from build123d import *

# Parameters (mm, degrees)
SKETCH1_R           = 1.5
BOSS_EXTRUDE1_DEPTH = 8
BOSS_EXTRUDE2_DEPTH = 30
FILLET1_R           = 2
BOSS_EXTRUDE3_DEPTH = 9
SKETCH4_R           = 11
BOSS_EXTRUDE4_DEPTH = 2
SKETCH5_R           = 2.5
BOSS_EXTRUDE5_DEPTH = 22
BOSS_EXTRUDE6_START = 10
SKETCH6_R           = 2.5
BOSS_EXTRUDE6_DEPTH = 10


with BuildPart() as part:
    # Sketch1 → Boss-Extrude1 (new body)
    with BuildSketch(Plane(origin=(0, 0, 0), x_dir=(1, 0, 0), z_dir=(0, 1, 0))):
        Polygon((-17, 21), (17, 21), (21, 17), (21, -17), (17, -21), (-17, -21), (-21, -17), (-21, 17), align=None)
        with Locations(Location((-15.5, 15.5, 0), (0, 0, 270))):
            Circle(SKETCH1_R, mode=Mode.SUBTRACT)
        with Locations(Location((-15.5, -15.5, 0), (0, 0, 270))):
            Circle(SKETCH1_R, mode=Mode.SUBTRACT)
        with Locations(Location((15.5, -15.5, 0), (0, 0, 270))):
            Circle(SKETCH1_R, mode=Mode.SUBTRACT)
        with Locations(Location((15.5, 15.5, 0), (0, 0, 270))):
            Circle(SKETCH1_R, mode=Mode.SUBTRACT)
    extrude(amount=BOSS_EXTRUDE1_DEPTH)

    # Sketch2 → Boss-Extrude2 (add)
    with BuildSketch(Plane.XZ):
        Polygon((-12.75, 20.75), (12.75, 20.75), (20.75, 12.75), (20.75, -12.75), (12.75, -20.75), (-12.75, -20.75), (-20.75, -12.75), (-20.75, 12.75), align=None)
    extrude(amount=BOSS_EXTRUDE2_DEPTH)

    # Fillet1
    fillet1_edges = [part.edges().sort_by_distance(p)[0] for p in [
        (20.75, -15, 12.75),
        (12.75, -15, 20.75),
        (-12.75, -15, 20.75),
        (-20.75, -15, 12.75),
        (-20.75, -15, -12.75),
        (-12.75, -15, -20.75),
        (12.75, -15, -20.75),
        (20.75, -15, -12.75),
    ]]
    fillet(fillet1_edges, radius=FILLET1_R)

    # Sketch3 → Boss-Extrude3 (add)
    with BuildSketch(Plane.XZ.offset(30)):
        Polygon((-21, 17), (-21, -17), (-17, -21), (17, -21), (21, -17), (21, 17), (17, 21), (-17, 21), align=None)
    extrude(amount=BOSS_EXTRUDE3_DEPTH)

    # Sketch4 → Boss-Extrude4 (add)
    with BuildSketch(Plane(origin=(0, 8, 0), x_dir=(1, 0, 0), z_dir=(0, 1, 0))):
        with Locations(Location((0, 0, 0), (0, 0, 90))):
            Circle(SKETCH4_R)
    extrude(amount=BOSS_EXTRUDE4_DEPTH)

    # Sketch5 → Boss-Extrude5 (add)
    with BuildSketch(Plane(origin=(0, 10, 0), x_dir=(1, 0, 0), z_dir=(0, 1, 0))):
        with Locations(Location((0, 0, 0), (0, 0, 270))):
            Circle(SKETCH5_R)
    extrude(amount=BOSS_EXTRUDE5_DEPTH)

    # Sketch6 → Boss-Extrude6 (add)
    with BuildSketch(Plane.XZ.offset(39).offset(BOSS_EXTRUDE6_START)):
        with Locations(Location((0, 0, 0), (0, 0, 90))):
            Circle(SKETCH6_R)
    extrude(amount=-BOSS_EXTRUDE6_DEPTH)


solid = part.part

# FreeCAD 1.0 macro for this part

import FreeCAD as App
import Part
import Sketcher


def edges_at(feature, points):
    """Names of the edges that pass closest to the given points."""
    edges = feature.Shape.Edges
    near = lambda p: min(range(len(edges)), key=lambda i: edges[i].distToShape(Part.Vertex(*p))[0])
    return sorted({f"Edge{near(p) + 1}" for p in points})

doc = App.newDocument("Part")
body = doc.addObject("PartDesign::Body", "Body")

# Sketch on XZ plane
sketch1 = doc.addObject("Sketcher::SketchObject", "Sketch")
body.addObject(sketch1)
sketch1.AttachmentSupport = (doc.XZ_Plane, [""])
sketch1.MapMode = "FlatFace"
sketch1.addGeometry([
    Part.LineSegment(App.Vector(17, -21, 0), App.Vector(-17, -21, 0)),  # 0
    Part.LineSegment(App.Vector(-17, -21, 0), App.Vector(-21, -17, 0)),  # 1
    Part.LineSegment(App.Vector(-21, -17, 0), App.Vector(-21, 17, 0)),  # 2
    Part.LineSegment(App.Vector(-21, 17, 0), App.Vector(-17, 21, 0)),  # 3
    Part.LineSegment(App.Vector(-17, 21, 0), App.Vector(17, 21, 0)),  # 4
    Part.LineSegment(App.Vector(17, 21, 0), App.Vector(21, 17, 0)),  # 5
    Part.LineSegment(App.Vector(21, 17, 0), App.Vector(21, -17, 0)),  # 6
    Part.LineSegment(App.Vector(21, -17, 0), App.Vector(17, -21, 0)),  # 7
    Part.Circle(App.Vector(15.5, 15.5, 0), App.Vector(0, 0, 1), 1.5),  # 8
    Part.Circle(App.Vector(-15.5, 15.5, 0), App.Vector(0, 0, 1), 1.5),  # 9
    Part.Circle(App.Vector(15.5, -15.5, 0), App.Vector(0, 0, 1), 1.5),  # 10
    Part.Circle(App.Vector(-15.5, -15.5, 0), App.Vector(0, 0, 1), 1.5),  # 11
], False)
sketch1.addConstraint([
    Sketcher.Constraint("Coincident", 0, 2, 1, 1),
    Sketcher.Constraint("Coincident", 1, 2, 2, 1),
    Sketcher.Constraint("Coincident", 2, 2, 3, 1),
    Sketcher.Constraint("Coincident", 3, 2, 4, 1),
    Sketcher.Constraint("Coincident", 4, 2, 5, 1),
    Sketcher.Constraint("Coincident", 5, 2, 6, 1),
    Sketcher.Constraint("Coincident", 6, 2, 7, 1),
    Sketcher.Constraint("Coincident", 7, 2, 0, 1),
    Sketcher.Constraint("Horizontal", 0),
    Sketcher.Constraint("Vertical", 2),
    Sketcher.Constraint("Horizontal", 4),
    Sketcher.Constraint("Vertical", 6),
    Sketcher.Constraint("Equal", 8, 9),
    Sketcher.Constraint("Equal", 9, 10),
    Sketcher.Constraint("Equal", 10, 11),
    Sketcher.Constraint("Symmetric", 9, 3, 10, 3, -1, 1),
    Sketcher.Constraint("Symmetric", 8, 3, 11, 3, -1, 1),
    Sketcher.Constraint("Symmetric", 0, 2, 4, 2, -1, 1),
    Sketcher.Constraint("Symmetric", 1, 2, 5, 2, -1, 1),
    Sketcher.Constraint("Symmetric", 8, 3, 9, 3, -2),
    Sketcher.Constraint("Perpendicular", 1, 3),
    Sketcher.Constraint("Perpendicular", 5, 7),
    Sketcher.Constraint("Horizontal", 2, 2, 5, 2),
    Sketcher.Constraint("Horizontal", 1, 2, 6, 2),
    Sketcher.Constraint("Vertical", 0, 2, 3, 2),
    Sketcher.Constraint("Equal", 4, 2),
    Sketcher.Constraint("Diameter", 8, 3.0),
    Sketcher.Constraint("DistanceX", 0, 2, 0, 1, 34.0),
    Sketcher.Constraint("DistanceY", 0, 2, -1, 1, 21.0),
    Sketcher.Constraint("DistanceX", 9, 3, 8, 3, 31.0),
    Sketcher.Constraint("DistanceY", 10, 3, 8, 3, 31.0),
])
pad1 = doc.addObject("PartDesign::Pad", "Pad")
body.addObject(pad1)
pad1.Profile = sketch1
pad1.Length = 8
pad1.Reversed = True

# Sketch on XZ plane
sketch2 = doc.addObject("Sketcher::SketchObject", "Sketch001")
body.addObject(sketch2)
sketch2.AttachmentSupport = (doc.XZ_Plane, [""])
sketch2.MapMode = "FlatFace"
sketch2.addGeometry([
    Part.LineSegment(App.Vector(13, 21, 0), App.Vector(-13, 21, 0)),  # 0
    Part.LineSegment(App.Vector(-13, 21, 0), App.Vector(-21, 13, 0)),  # 1
    Part.LineSegment(App.Vector(-21, 13, 0), App.Vector(-21, -13, 0)),  # 2
    Part.LineSegment(App.Vector(-21, -13, 0), App.Vector(-13, -21, 0)),  # 3
    Part.LineSegment(App.Vector(-13, -21, 0), App.Vector(13, -21, 0)),  # 4
    Part.LineSegment(App.Vector(13, -21, 0), App.Vector(21, -13, 0)),  # 5
    Part.LineSegment(App.Vector(21, -13, 0), App.Vector(21, 13, 0)),  # 6
    Part.LineSegment(App.Vector(21, 13, 0), App.Vector(13, 21, 0)),  # 7
], False)
sketch2.addConstraint([
    Sketcher.Constraint("Coincident", 0, 2, 1, 1),
    Sketcher.Constraint("Coincident", 1, 2, 2, 1),
    Sketcher.Constraint("Coincident", 2, 2, 3, 1),
    Sketcher.Constraint("Coincident", 3, 2, 4, 1),
    Sketcher.Constraint("Coincident", 4, 2, 5, 1),
    Sketcher.Constraint("Coincident", 5, 2, 6, 1),
    Sketcher.Constraint("Coincident", 6, 2, 7, 1),
    Sketcher.Constraint("Coincident", 7, 2, 0, 1),
    Sketcher.Constraint("Horizontal", 0),
    Sketcher.Constraint("Vertical", 2),
    Sketcher.Constraint("Horizontal", 4),
    Sketcher.Constraint("Vertical", 6),
    Sketcher.Constraint("Symmetric", 0, 2, 4, 2, -1, 1),
    Sketcher.Constraint("Symmetric", 1, 2, 5, 2, -1, 1),
    Sketcher.Constraint("Perpendicular", 1, 3),
    Sketcher.Constraint("Perpendicular", 5, 7),
    Sketcher.Constraint("Horizontal", 2, 2, 5, 2),
    Sketcher.Constraint("Horizontal", 1, 2, 6, 2),
    Sketcher.Constraint("Vertical", 0, 2, 3, 2),
    Sketcher.Constraint("Equal", 4, 2),
    Sketcher.Constraint("DistanceX", 0, 2, 0, 1, 25.5),
    Sketcher.Constraint("DistanceX", 1, 2, 0, 2, 8.0),
])
pad2 = doc.addObject("PartDesign::Pad", "Pad001")
body.addObject(pad2)
pad2.Profile = sketch2
pad2.Length = 30
doc.recompute()

fillet = doc.addObject("PartDesign::Fillet", "Fillet")
body.addObject(fillet)
fillet.Base = (pad2, edges_at(pad2, [
    (20.75, -15, 12.75),
    (12.75, -15, 20.75),
    (-12.75, -15, 20.75),
    (-20.75, -15, 12.75),
    (-20.75, -15, -12.75),
    (-12.75, -15, -20.75),
    (12.75, -15, -20.75),
    (20.75, -15, -12.75),
]))
fillet.Radius = 2

# Sketch on XZ plane
sketch3 = doc.addObject("Sketcher::SketchObject", "Sketch002")
body.addObject(sketch3)
sketch3.AttachmentSupport = (doc.XZ_Plane, [""])
sketch3.MapMode = "FlatFace"
sketch3.AttachmentOffset = App.Placement(App.Vector(0, 0, 30), App.Rotation())
sketch3.addGeometry([
    Part.LineSegment(App.Vector(-21, 17, 0), App.Vector(-21, -17, 0)),  # 0
    Part.LineSegment(App.Vector(-21, -17, 0), App.Vector(-17, -21, 0)),  # 1
    Part.LineSegment(App.Vector(-17, -21, 0), App.Vector(17, -21, 0)),  # 2
    Part.LineSegment(App.Vector(17, -21, 0), App.Vector(21, -17, 0)),  # 3
    Part.LineSegment(App.Vector(21, -17, 0), App.Vector(21, 17, 0)),  # 4
    Part.LineSegment(App.Vector(21, 17, 0), App.Vector(17, 21, 0)),  # 5
    Part.LineSegment(App.Vector(17, 21, 0), App.Vector(-17, 21, 0)),  # 6
    Part.LineSegment(App.Vector(-17, 21, 0), App.Vector(-21, 17, 0)),  # 7
], False)
sketch3.addConstraint([
    Sketcher.Constraint("Coincident", 0, 2, 1, 1),
    Sketcher.Constraint("Coincident", 1, 2, 2, 1),
    Sketcher.Constraint("Coincident", 2, 2, 3, 1),
    Sketcher.Constraint("Coincident", 3, 2, 4, 1),
    Sketcher.Constraint("Coincident", 4, 2, 5, 1),
    Sketcher.Constraint("Coincident", 5, 2, 6, 1),
    Sketcher.Constraint("Coincident", 6, 2, 7, 1),
    Sketcher.Constraint("Coincident", 7, 2, 0, 1),
    Sketcher.Constraint("Vertical", 0),
    Sketcher.Constraint("Horizontal", 2),
    Sketcher.Constraint("Vertical", 4),
    Sketcher.Constraint("Horizontal", 6),
    Sketcher.Constraint("Symmetric", 0, 2, 4, 2, -1, 1),
    Sketcher.Constraint("Symmetric", 1, 2, 5, 2, -1, 1),
    Sketcher.Constraint("Perpendicular", 1, 3),
    Sketcher.Constraint("Perpendicular", 5, 7),
    Sketcher.Constraint("Horizontal", 0, 2, 3, 2),
    Sketcher.Constraint("Horizontal", 4, 2, 7, 2),
    Sketcher.Constraint("Vertical", 2, 2, 5, 2),
    Sketcher.Constraint("Equal", 6, 0),
    Sketcher.Constraint("DistanceX", 2, 1, 2, 2, 34.0),
    Sketcher.Constraint("DistanceX", 0, 2, -1, 1, 21.0),
])
pad3 = doc.addObject("PartDesign::Pad", "Pad002")
body.addObject(pad3)
pad3.Profile = sketch3
pad3.Length = 9

# Sketch on XZ plane
sketch4 = doc.addObject("Sketcher::SketchObject", "Sketch003")
body.addObject(sketch4)
sketch4.AttachmentSupport = (doc.XZ_Plane, [""])
sketch4.MapMode = "FlatFace"
sketch4.AttachmentOffset = App.Placement(App.Vector(0, 0, -8), App.Rotation())
sketch4.addGeometry(Part.Circle(App.Vector(0, 0, 0), App.Vector(0, 0, 1), 11), False)
sketch4.addConstraint([
    Sketcher.Constraint("Coincident", 0, 3, -1, 1),
    Sketcher.Constraint("Diameter", 0, 22.0),
])
pad4 = doc.addObject("PartDesign::Pad", "Pad003")
body.addObject(pad4)
pad4.Profile = sketch4
pad4.Length = 2
pad4.Reversed = True

# Sketch on XZ plane
sketch5 = doc.addObject("Sketcher::SketchObject", "Sketch004")
body.addObject(sketch5)
sketch5.AttachmentSupport = (doc.XZ_Plane, [""])
sketch5.MapMode = "FlatFace"
sketch5.AttachmentOffset = App.Placement(App.Vector(0, 0, -10), App.Rotation())
sketch5.addGeometry(Part.Circle(App.Vector(0, 0, 0), App.Vector(0, 0, 1), 2.5), False)
sketch5.addConstraint([
    Sketcher.Constraint("Coincident", 0, 3, -1, 1),
    Sketcher.Constraint("Diameter", 0, 5.0),
])
pad5 = doc.addObject("PartDesign::Pad", "Pad004")
body.addObject(pad5)
pad5.Profile = sketch5
pad5.Length = 22
pad5.Reversed = True

# Sketch on XZ plane
sketch6 = doc.addObject("Sketcher::SketchObject", "Sketch005")
body.addObject(sketch6)
sketch6.AttachmentSupport = (doc.XZ_Plane, [""])
sketch6.MapMode = "FlatFace"
sketch6.AttachmentOffset = App.Placement(App.Vector(0, 0, 49), App.Rotation())
sketch6.addGeometry(Part.Circle(App.Vector(0, 0, 0), App.Vector(0, 0, 1), 2.5), False)
sketch6.addConstraint([
    Sketcher.Constraint("Coincident", 0, 3, -1, 1),
    Sketcher.Constraint("Diameter", 0, 5.0),
])
pad6 = doc.addObject("PartDesign::Pad", "Pad005")
body.addObject(pad6)
pad6.Profile = sketch6
pad6.Length = 10
pad6.Reversed = True

doc.recompute()
